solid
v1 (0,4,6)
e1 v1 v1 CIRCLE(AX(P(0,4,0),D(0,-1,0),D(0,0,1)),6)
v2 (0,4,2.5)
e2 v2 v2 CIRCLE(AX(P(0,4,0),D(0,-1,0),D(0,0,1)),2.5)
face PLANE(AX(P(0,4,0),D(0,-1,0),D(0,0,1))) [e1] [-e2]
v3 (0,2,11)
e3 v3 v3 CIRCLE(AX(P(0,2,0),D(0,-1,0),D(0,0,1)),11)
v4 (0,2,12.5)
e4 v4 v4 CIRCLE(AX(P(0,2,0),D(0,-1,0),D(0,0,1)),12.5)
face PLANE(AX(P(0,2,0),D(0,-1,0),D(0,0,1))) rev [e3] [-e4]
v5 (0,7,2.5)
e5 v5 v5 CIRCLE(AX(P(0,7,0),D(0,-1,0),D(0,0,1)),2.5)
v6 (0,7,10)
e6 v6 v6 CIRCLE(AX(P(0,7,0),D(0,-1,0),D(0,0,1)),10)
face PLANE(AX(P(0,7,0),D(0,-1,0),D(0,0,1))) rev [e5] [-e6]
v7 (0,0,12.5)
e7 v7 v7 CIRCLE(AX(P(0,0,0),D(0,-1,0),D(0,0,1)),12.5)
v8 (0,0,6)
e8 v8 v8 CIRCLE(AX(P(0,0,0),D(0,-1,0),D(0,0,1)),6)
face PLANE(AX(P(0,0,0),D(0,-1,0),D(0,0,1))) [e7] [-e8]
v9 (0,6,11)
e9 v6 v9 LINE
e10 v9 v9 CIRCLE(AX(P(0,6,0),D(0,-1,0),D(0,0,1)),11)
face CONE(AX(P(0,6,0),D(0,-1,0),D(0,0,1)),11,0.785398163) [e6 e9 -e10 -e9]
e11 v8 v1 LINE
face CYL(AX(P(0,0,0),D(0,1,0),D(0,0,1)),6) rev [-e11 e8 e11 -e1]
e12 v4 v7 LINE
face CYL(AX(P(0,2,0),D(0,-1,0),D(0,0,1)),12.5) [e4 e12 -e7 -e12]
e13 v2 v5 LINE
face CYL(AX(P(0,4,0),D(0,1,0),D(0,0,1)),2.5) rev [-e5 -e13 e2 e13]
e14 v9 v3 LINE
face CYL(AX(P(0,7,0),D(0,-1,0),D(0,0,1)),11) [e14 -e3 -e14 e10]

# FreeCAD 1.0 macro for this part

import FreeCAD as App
import Part
import Sketcher
from FreeCAD import Vector


def edges_at(feature, points):
    """Names of the edges that pass closest to the given points."""
    edges = feature.Shape.Edges
    near = lambda p: min(range(len(edges)), key=lambda i: edges[i].distToShape(Part.Vertex(*p))[0])
    return sorted({f"Edge{near(p) + 1}" for p in points})


def add_polygon(sketch, points):
    """Adds a closed chain of lines whose ends are joined by coincident constraints."""
    first, n = sketch.GeometryCount, len(points)
    for a, b in zip(points, points[1:] + points[:1]):
        sketch.addGeometry(Part.LineSegment(App.Vector(*a, 0), App.Vector(*b, 0)), False)
    for i in range(n):
        sketch.addConstraint(Sketcher.Constraint("Coincident", first + i, 2, first + (i + 1) % n, 1))

doc = App.newDocument("Part")
body = doc.addObject("PartDesign::Body", "Body")

# Sketch on YZ plane
sketch1 = body.newObject("Sketcher::SketchObject", "Sketch")
sketch1.AttachmentSupport = (doc.getObject("YZ_Plane"), [""])
sketch1.MapMode = "FlatFace"
add_polygon(sketch1, [(0, 6), (4, 6), (4, 2.5), (7, 2.5), (7, 11), (2, 11), (2, 12.5), (0, 12.5)])  # lines 0-7
sketch1.addConstraint(Sketcher.Constraint("Horizontal", 0))
sketch1.addConstraint(Sketcher.Constraint("Vertical", 1))
sketch1.addConstraint(Sketcher.Constraint("Horizontal", 2))
sketch1.addConstraint(Sketcher.Constraint("Vertical", 3))
sketch1.addConstraint(Sketcher.Constraint("Horizontal", 4))
sketch1.addConstraint(Sketcher.Constraint("Vertical", 5))
sketch1.addConstraint(Sketcher.Constraint("Horizontal", 6))
sketch1.addConstraint(Sketcher.Constraint("Vertical", 7))
sketch1.addConstraint(Sketcher.Constraint("PointOnObject", 6, 2, -2))
sketch1.addConstraint(Sketcher.Constraint("DistanceX", 0, 1, 0, 2, 4.0))
sketch1.addConstraint(Sketcher.Constraint("DistanceX", 2, 1, 2, 2, 3.0))
sketch1.addConstraint(Sketcher.Constraint("DistanceX", 4, 2, 4, 1, 5.0))
sketch1.addConstraint(Sketcher.Constraint("DistanceY", 1, 2, 1, 1, 3.5))
sketch1.addConstraint(Sketcher.Constraint("DistanceY", 3, 1, 3, 2, 8.5))
sketch1.addConstraint(Sketcher.Constraint("DistanceY", 5, 1, 5, 2, 1.5))
sketch1.addConstraint(Sketcher.Constraint("DistanceY", -1, 1, 0, 2, 6.0))
revolution = body.newObject("PartDesign::Revolution", "Revolution")
revolution.Profile = sketch1
revolution.ReferenceAxis = (sketch1, ["H_Axis"])
revolution.Angle = 360
doc.recompute()

chamfer = body.newObject("PartDesign::Chamfer", "Chamfer")
chamfer.Base = (revolution, edges_at(revolution, [(0, 7, -11)]))
chamfer.Size = 1

doc.recompute()
